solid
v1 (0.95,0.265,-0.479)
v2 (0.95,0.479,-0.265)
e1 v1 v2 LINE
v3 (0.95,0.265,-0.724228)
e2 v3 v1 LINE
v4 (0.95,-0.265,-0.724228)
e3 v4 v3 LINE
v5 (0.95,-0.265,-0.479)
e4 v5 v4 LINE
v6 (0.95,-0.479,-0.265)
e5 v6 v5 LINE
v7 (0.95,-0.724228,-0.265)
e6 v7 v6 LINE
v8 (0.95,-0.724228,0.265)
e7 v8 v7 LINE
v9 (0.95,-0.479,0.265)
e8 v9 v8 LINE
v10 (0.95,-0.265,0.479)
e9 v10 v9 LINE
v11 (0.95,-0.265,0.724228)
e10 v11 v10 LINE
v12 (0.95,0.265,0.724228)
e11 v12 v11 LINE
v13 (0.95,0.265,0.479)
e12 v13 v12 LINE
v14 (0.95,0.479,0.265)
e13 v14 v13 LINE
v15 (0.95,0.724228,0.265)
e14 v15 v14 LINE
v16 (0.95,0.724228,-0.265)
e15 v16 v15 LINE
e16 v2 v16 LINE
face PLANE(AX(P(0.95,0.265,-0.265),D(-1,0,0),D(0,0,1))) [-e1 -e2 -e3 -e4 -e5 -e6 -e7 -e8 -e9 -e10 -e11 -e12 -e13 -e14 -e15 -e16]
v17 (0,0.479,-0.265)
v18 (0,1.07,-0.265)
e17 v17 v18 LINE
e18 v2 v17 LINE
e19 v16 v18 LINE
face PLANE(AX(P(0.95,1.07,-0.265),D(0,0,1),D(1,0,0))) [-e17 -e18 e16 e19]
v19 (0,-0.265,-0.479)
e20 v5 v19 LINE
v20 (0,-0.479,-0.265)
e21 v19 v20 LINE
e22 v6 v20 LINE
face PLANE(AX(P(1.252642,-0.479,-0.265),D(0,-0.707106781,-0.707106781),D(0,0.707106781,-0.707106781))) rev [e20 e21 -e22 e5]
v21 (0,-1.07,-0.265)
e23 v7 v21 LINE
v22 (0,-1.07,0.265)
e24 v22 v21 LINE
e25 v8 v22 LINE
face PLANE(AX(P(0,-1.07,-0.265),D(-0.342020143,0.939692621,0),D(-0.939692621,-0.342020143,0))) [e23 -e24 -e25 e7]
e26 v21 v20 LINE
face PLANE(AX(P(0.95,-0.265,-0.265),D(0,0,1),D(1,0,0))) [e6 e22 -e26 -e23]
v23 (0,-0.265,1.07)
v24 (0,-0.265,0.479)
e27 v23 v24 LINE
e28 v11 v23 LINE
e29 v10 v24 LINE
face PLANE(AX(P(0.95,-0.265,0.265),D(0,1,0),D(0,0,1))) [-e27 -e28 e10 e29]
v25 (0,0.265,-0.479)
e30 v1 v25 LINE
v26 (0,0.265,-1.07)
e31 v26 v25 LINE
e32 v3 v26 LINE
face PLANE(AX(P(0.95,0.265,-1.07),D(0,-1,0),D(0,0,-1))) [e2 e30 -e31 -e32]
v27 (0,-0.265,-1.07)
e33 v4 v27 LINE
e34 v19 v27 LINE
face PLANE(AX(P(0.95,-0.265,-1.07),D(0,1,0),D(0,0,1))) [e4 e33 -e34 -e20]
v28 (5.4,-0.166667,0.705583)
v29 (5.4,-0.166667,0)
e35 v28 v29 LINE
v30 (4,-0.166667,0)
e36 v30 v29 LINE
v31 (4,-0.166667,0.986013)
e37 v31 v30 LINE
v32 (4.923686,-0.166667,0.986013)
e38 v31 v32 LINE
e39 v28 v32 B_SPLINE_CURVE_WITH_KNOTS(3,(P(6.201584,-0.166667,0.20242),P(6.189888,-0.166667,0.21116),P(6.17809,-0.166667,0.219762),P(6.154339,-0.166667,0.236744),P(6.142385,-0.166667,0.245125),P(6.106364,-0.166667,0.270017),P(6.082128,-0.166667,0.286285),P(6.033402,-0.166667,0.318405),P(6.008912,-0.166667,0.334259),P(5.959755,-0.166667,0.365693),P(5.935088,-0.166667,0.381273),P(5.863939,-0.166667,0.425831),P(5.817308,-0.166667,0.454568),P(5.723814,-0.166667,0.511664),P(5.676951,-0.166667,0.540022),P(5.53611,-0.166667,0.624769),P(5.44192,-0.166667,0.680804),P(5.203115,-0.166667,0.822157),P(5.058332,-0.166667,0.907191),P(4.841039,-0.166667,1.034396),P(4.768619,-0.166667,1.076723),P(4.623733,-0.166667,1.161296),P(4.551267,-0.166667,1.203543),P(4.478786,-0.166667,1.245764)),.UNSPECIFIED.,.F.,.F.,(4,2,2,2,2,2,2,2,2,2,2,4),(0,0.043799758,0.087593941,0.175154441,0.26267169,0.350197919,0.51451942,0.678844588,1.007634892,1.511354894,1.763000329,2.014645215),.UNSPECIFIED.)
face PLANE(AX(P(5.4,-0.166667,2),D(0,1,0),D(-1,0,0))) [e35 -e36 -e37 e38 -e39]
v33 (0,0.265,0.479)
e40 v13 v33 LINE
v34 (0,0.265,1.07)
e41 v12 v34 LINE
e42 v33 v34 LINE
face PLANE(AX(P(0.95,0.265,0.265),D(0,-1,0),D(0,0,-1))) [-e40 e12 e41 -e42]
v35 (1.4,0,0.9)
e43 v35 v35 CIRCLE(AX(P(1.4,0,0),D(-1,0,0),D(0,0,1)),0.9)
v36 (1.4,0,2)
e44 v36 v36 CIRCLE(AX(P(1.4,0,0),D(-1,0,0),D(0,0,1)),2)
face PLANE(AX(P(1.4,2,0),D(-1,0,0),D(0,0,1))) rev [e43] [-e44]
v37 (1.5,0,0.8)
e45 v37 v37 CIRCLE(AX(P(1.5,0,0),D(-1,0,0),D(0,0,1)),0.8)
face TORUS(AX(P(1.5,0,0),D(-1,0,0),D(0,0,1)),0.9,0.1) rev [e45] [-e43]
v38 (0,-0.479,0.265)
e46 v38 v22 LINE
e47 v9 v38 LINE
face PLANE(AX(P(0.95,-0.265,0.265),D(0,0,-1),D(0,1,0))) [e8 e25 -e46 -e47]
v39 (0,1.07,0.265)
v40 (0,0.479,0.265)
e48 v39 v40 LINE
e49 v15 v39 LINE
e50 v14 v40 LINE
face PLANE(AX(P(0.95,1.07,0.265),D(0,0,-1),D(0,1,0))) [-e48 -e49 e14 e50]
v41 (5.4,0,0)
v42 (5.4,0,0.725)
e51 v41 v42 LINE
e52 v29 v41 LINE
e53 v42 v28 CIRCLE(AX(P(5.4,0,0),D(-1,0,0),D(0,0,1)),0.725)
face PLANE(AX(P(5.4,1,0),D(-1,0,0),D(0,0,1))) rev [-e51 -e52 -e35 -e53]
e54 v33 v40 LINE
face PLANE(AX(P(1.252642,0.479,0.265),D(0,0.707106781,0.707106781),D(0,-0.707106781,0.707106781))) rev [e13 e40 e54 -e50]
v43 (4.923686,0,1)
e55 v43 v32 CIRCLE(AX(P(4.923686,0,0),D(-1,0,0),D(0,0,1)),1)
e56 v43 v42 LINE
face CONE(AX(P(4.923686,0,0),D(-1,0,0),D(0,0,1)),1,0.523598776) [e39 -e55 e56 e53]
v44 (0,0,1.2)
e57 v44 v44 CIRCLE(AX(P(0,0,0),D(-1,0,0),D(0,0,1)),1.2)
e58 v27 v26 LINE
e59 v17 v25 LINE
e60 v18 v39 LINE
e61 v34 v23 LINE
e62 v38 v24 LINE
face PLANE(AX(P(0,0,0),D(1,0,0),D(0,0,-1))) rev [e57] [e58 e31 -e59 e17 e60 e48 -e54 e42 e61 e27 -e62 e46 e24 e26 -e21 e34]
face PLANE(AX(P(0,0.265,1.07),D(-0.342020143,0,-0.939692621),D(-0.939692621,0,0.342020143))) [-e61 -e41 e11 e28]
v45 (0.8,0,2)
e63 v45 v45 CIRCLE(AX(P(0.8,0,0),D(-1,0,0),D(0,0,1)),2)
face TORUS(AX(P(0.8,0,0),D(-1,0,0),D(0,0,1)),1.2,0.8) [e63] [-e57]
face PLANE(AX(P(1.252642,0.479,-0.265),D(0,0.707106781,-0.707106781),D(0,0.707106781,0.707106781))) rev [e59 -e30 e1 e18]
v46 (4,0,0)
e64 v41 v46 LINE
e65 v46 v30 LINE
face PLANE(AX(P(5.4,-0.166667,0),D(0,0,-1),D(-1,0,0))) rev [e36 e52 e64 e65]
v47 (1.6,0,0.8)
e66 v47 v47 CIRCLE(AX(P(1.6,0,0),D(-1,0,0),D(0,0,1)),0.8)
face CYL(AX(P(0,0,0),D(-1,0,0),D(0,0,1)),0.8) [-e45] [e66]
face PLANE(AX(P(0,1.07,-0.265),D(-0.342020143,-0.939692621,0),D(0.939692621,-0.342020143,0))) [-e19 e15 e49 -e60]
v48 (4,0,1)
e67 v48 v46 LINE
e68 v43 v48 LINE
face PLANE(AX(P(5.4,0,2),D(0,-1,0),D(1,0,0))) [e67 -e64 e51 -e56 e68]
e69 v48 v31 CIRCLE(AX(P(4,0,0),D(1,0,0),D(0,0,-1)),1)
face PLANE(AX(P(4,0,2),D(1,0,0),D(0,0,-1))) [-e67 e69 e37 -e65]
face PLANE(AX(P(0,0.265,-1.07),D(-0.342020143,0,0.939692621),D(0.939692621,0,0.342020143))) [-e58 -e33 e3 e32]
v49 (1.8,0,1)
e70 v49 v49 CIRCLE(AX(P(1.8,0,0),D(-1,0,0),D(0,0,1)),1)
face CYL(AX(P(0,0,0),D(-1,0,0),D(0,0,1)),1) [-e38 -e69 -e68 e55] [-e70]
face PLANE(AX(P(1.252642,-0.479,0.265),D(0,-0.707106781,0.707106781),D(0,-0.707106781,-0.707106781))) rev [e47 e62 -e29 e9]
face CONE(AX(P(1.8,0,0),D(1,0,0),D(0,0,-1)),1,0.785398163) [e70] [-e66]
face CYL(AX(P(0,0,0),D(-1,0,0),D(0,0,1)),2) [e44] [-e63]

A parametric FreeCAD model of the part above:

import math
import FreeCAD as App
import Part
import Sketcher

V = App.Vector
Q = App.Units.Quantity


def faces_at(feature, points):
    """Names of the faces that lie closest to the given points."""
    faces = feature.Shape.Faces
    near = lambda p: min(range(len(faces)), key=lambda i: faces[i].distToShape(Part.Vertex(*p))[0])
    return sorted({f"Face{near(p) + 1}" for p in points})


def add_polygon(sketch, points):
    """Adds a closed chain of lines whose ends are joined by coincident constraints."""
    first, n = sketch.GeometryCount, len(points)
    for a, b in zip(points, points[1:] + points[:1]):
        sketch.addGeometry(Part.LineSegment(App.Vector(*a, 0), App.Vector(*b, 0)), False)
    for i in range(n):
        sketch.addConstraint(Sketcher.Constraint("Coincident", first + i, 2, first + (i + 1) % n, 1))

doc = App.newDocument("Part")
body = doc.addObject("PartDesign::Body", "Body")

# Sketch on XY plane
sketch1 = body.newObject("Sketcher::SketchObject", "Sketch")
sketch1.AttachmentSupport = (doc.getObject("XY_Plane"), [""])
sketch1.MapMode = "FlatFace"
sketch1.addGeometry([
    Part.LineSegment(V(0, 1.2, 0), V(0, 0, 0)),  # 0
    Part.LineSegment(V(0, 0, 0), V(5.4, 0, 0)),  # 1
    Part.LineSegment(V(5.4, 0, 0), V(5.4, 1, 0)),  # 2
    Part.LineSegment(V(5.4, 1, 0), V(1.8, 1, 0)),  # 3
    Part.LineSegment(V(1.8, 1, 0), V(1.6, 0.8, 0)),  # 4
    Part.LineSegment(V(1.6, 0.8, 0), V(1.5, 0.8, 0)),  # 5
    Part.ArcOfCircle(Part.Circle(V(1.5, 0.9, 0), V(0, 0, 1), 0.1), math.radians(180), math.radians(270)),  # 6
    Part.LineSegment(V(1.4, 0.9, 0), V(1.4, 2, 0)),  # 7
    Part.LineSegment(V(1.4, 2, 0), V(0.8, 2, 0)),  # 8
    Part.ArcOfCircle(Part.Circle(V(0.8, 1.2, 0), V(0, 0, 1), 0.8), math.radians(90), math.radians(180)),  # 9
], False)
sketch1.addConstraint([
    Sketcher.Constraint("Coincident", 0, 2, 1, 1),
    Sketcher.Constraint("Coincident", 1, 2, 2, 1),
    Sketcher.Constraint("Coincident", 2, 2, 3, 1),
    Sketcher.Constraint("Coincident", 3, 2, 4, 1),
    Sketcher.Constraint("Coincident", 4, 2, 5, 1),
    Sketcher.Constraint("Tangent", 5, 2, 6, 2),
    Sketcher.Constraint("Tangent", 6, 1, 7, 1),
    Sketcher.Constraint("Coincident", 7, 2, 8, 1),
    Sketcher.Constraint("Tangent", 8, 2, 9, 1),
    Sketcher.Constraint("Tangent", 9, 2, 0, 1),
    Sketcher.Constraint("Vertical", 0),
    Sketcher.Constraint("Horizontal", 1),
    Sketcher.Constraint("Vertical", 2),
    Sketcher.Constraint("Horizontal", 3),
    Sketcher.Constraint("Horizontal", 5),
    Sketcher.Constraint("Vertical", 7),
    Sketcher.Constraint("Horizontal", 8),
    Sketcher.Constraint("Coincident", 0, 2, -1, 1),
    Sketcher.Constraint("Radius", 6, 0.1),
    Sketcher.Constraint("Radius", 9, 0.8),
    Sketcher.Constraint("DistanceY", 2, 1, 2, 2, 1.0),
    Sketcher.Constraint("Angle", 4, Q("-135 deg")),
    Sketcher.Constraint("DistanceX", 1, 1, 1, 2, 5.4),
    Sketcher.Constraint("DistanceX", 3, 2, 3, 1, 3.6),
    Sketcher.Constraint("DistanceX", 5, 2, 5, 1, 0.1),
    Sketcher.Constraint("DistanceX", 8, 2, 8, 1, 0.6),
    Sketcher.Constraint("DistanceY", 0, 2, 0, 1, 1.2),
])
revolution = body.newObject("PartDesign::Revolution", "Revolution")
revolution.Profile = sketch1
revolution.ReferenceAxis = (sketch1, ["H_Axis"])
revolution.Angle = 360

# Sketch on YZ plane
sketch2 = body.newObject("Sketcher::SketchObject", "Sketch001")
sketch2.AttachmentSupport = (doc.getObject("YZ_Plane"), [""])
sketch2.MapMode = "FlatFace"
add_polygon(sketch2, [(1.1, -0.3), (1.1, 0.3), (0.3, 0.3), (0.3, 1.1), (-0.3, 1.1), (-0.3, 0.3), (-1.1, 0.3), (-1.1, -0.3), (-0.3, -0.3), (-0.3, -1.1), (0.3, -1.1), (0.3, -0.3)])  # lines 0-11
sketch2.addConstraint([
    Sketcher.Constraint("Vertical", 0),
    Sketcher.Constraint("Horizontal", 1),
    Sketcher.Constraint("Vertical", 2),
    Sketcher.Constraint("Horizontal", 3),
    Sketcher.Constraint("Vertical", 4),
    Sketcher.Constraint("Horizontal", 5),
    Sketcher.Constraint("Vertical", 6),
    Sketcher.Constraint("Horizontal", 7),
    Sketcher.Constraint("Vertical", 8),
    Sketcher.Constraint("Horizontal", 9),
    Sketcher.Constraint("Vertical", 10),
    Sketcher.Constraint("Horizontal", 11),
    Sketcher.Constraint("Symmetric", 0, 2, 6, 2, -1, 1),
    Sketcher.Constraint("Symmetric", 2, 2, 8, 2, -1, 1),
    Sketcher.Constraint("Symmetric", 4, 2, 10, 2, -1, 1),
    Sketcher.Constraint("Symmetric", 1, 2, 4, 2, -2),
    Sketcher.Constraint("Equal", 9, 0),
    Sketcher.Constraint("Equal", 11, 2),
    Sketcher.Constraint("DistanceX", 3, 2, 3, 1, 0.53),
    Sketcher.Constraint("DistanceX", 1, 2, 1, 1, 0.805),
])
pocket1 = body.newObject("PartDesign::Pocket", "Pocket")
pocket1.Profile = sketch2
pocket1.Length = 0.95
pocket1.Reversed = True
doc.recompute()

draft = body.newObject("PartDesign::Draft", "Draft")
draft.Base = (pocket1, faces_at(pocket1, [
    (0.475, 0, -1.07),
    (0.475, -1.07, 0),
    (0.475, 0, 1.07),
    (0.475, 1.07, 0),
]))
draft.NeutralPlane = (doc.getObject("YZ_Plane"), [""])
draft.Angle = 20
draft.Reversed = True

# Sketch on YZ plane
sketch3 = body.newObject("Sketcher::SketchObject", "Sketch002")
sketch3.AttachmentSupport = (doc.getObject("YZ_Plane"), [""])
sketch3.MapMode = "FlatFace"
add_polygon(sketch3, [(0.27, 0.48), (0.48, 0.27), (0.27, 0.27)])  # lines 0-2
add_polygon(sketch3, [(0.27, -0.48), (0.27, -0.27), (0.48, -0.27)])  # lines 3-5
add_polygon(sketch3, [(-0.27, -0.48), (-0.48, -0.27), (-0.27, -0.27)])  # lines 6-8
add_polygon(sketch3, [(-0.27, 0.48), (-0.27, 0.27), (-0.48, 0.27)])  # lines 9-11
sketch3.addConstraint([
    Sketcher.Constraint("Horizontal", 1),
    Sketcher.Constraint("Vertical", 2),
    Sketcher.Constraint("Vertical", 3),
    Sketcher.Constraint("Horizontal", 4),
    Sketcher.Constraint("Horizontal", 7),
    Sketcher.Constraint("Vertical", 8),
    Sketcher.Constraint("Vertical", 9),
    Sketcher.Constraint("Horizontal", 10),
    Sketcher.Constraint("Symmetric", 0, 2, 6, 2, -1, 1),
    Sketcher.Constraint("Symmetric", 2, 2, 8, 2, -1, 1),
    Sketcher.Constraint("Symmetric", 3, 2, 9, 2, -1, 1),
    Sketcher.Constraint("Symmetric", 4, 2, 6, 2, -2),
    Sketcher.Constraint("Symmetric", 5, 2, 8, 2, -2),
    Sketcher.Constraint("Perpendicular", 0, 5),
    Sketcher.Constraint("Perpendicular", 6, 11),
    Sketcher.Constraint("Horizontal", 2, 2, 11, 2),
    Sketcher.Constraint("DistanceX", 1, 2, 1, 1, 0.214),
    Sketcher.Constraint("DistanceY", 3, 2, 1, 2, 0.53),
    Sketcher.Constraint("DistanceX", 7, 2, 3, 2, 0.53),
])
pocket2 = body.newObject("PartDesign::Pocket", "Pocket001")
pocket2.Profile = sketch3
pocket2.Length = 0.95
pocket2.Reversed = True

# Sketch on XY plane
sketch4 = body.newObject("Sketcher::SketchObject", "Sketch003")
sketch4.AttachmentSupport = (doc.getObject("XY_Plane"), [""])
sketch4.MapMode = "FlatFace"
add_polygon(sketch4, [(5.4, 0), (5.9, 0), (5.9, 1.5), (4.9, 1.5), (4.9, 1), (5.4, 0.7)])  # lines 0-5
sketch4.addConstraint([
    Sketcher.Constraint("Horizontal", 0),
    Sketcher.Constraint("Vertical", 1),
    Sketcher.Constraint("Horizontal", 2),
    Sketcher.Constraint("Vertical", 3),
    Sketcher.Constraint("Vertical", 5),
    Sketcher.Constraint("PointOnObject", 0, 2, -1),
    Sketcher.Constraint("Equal", 0, 3),
    Sketcher.Constraint("Angle", 4, Q("-30 deg")),
    Sketcher.Constraint("DistanceY", -1, 1, 3, 2, 1.0),
    Sketcher.Constraint("DistanceX", -1, 1, 4, 2, 5.4),
    Sketcher.Constraint("Distance", 4, 0.55),
    Sketcher.Constraint("DistanceX", 0, 1, 0, 2, 0.508),
])
groove = body.newObject("PartDesign::Groove", "Groove")
groove.Profile = sketch4
groove.ReferenceAxis = (sketch4, ["H_Axis"])
groove.Angle = 360

# Sketch on XY plane
sketch5 = body.newObject("Sketcher::SketchObject", "Sketch004")
sketch5.AttachmentSupport = (doc.getObject("XY_Plane"), [""])
sketch5.MapMode = "FlatFace"
add_polygon(sketch5, [(4, 0), (4, -0.17), (5.4, -0.17), (5.4, 0)])  # lines 0-3
sketch5.addConstraint([
    Sketcher.Constraint("Vertical", 0),
    Sketcher.Constraint("Horizontal", 1),
    Sketcher.Constraint("Vertical", 2),
    Sketcher.Constraint("Horizontal", 3),
    Sketcher.Constraint("PointOnObject", 2, 2, -1),
    Sketcher.Constraint("DistanceX", 1, 1, 1, 2, 1.4),
    Sketcher.Constraint("DistanceX", -1, 1, 0, 2, 4.0),
    Sketcher.Constraint("DistanceY", 0, 2, 0, 1, 0.166667),
])
pocket3 = body.newObject("PartDesign::Pocket", "Pocket002")
pocket3.Profile = sketch5
pocket3.Type = "ThroughAll"
pocket3.Reversed = True

doc.recompute()
